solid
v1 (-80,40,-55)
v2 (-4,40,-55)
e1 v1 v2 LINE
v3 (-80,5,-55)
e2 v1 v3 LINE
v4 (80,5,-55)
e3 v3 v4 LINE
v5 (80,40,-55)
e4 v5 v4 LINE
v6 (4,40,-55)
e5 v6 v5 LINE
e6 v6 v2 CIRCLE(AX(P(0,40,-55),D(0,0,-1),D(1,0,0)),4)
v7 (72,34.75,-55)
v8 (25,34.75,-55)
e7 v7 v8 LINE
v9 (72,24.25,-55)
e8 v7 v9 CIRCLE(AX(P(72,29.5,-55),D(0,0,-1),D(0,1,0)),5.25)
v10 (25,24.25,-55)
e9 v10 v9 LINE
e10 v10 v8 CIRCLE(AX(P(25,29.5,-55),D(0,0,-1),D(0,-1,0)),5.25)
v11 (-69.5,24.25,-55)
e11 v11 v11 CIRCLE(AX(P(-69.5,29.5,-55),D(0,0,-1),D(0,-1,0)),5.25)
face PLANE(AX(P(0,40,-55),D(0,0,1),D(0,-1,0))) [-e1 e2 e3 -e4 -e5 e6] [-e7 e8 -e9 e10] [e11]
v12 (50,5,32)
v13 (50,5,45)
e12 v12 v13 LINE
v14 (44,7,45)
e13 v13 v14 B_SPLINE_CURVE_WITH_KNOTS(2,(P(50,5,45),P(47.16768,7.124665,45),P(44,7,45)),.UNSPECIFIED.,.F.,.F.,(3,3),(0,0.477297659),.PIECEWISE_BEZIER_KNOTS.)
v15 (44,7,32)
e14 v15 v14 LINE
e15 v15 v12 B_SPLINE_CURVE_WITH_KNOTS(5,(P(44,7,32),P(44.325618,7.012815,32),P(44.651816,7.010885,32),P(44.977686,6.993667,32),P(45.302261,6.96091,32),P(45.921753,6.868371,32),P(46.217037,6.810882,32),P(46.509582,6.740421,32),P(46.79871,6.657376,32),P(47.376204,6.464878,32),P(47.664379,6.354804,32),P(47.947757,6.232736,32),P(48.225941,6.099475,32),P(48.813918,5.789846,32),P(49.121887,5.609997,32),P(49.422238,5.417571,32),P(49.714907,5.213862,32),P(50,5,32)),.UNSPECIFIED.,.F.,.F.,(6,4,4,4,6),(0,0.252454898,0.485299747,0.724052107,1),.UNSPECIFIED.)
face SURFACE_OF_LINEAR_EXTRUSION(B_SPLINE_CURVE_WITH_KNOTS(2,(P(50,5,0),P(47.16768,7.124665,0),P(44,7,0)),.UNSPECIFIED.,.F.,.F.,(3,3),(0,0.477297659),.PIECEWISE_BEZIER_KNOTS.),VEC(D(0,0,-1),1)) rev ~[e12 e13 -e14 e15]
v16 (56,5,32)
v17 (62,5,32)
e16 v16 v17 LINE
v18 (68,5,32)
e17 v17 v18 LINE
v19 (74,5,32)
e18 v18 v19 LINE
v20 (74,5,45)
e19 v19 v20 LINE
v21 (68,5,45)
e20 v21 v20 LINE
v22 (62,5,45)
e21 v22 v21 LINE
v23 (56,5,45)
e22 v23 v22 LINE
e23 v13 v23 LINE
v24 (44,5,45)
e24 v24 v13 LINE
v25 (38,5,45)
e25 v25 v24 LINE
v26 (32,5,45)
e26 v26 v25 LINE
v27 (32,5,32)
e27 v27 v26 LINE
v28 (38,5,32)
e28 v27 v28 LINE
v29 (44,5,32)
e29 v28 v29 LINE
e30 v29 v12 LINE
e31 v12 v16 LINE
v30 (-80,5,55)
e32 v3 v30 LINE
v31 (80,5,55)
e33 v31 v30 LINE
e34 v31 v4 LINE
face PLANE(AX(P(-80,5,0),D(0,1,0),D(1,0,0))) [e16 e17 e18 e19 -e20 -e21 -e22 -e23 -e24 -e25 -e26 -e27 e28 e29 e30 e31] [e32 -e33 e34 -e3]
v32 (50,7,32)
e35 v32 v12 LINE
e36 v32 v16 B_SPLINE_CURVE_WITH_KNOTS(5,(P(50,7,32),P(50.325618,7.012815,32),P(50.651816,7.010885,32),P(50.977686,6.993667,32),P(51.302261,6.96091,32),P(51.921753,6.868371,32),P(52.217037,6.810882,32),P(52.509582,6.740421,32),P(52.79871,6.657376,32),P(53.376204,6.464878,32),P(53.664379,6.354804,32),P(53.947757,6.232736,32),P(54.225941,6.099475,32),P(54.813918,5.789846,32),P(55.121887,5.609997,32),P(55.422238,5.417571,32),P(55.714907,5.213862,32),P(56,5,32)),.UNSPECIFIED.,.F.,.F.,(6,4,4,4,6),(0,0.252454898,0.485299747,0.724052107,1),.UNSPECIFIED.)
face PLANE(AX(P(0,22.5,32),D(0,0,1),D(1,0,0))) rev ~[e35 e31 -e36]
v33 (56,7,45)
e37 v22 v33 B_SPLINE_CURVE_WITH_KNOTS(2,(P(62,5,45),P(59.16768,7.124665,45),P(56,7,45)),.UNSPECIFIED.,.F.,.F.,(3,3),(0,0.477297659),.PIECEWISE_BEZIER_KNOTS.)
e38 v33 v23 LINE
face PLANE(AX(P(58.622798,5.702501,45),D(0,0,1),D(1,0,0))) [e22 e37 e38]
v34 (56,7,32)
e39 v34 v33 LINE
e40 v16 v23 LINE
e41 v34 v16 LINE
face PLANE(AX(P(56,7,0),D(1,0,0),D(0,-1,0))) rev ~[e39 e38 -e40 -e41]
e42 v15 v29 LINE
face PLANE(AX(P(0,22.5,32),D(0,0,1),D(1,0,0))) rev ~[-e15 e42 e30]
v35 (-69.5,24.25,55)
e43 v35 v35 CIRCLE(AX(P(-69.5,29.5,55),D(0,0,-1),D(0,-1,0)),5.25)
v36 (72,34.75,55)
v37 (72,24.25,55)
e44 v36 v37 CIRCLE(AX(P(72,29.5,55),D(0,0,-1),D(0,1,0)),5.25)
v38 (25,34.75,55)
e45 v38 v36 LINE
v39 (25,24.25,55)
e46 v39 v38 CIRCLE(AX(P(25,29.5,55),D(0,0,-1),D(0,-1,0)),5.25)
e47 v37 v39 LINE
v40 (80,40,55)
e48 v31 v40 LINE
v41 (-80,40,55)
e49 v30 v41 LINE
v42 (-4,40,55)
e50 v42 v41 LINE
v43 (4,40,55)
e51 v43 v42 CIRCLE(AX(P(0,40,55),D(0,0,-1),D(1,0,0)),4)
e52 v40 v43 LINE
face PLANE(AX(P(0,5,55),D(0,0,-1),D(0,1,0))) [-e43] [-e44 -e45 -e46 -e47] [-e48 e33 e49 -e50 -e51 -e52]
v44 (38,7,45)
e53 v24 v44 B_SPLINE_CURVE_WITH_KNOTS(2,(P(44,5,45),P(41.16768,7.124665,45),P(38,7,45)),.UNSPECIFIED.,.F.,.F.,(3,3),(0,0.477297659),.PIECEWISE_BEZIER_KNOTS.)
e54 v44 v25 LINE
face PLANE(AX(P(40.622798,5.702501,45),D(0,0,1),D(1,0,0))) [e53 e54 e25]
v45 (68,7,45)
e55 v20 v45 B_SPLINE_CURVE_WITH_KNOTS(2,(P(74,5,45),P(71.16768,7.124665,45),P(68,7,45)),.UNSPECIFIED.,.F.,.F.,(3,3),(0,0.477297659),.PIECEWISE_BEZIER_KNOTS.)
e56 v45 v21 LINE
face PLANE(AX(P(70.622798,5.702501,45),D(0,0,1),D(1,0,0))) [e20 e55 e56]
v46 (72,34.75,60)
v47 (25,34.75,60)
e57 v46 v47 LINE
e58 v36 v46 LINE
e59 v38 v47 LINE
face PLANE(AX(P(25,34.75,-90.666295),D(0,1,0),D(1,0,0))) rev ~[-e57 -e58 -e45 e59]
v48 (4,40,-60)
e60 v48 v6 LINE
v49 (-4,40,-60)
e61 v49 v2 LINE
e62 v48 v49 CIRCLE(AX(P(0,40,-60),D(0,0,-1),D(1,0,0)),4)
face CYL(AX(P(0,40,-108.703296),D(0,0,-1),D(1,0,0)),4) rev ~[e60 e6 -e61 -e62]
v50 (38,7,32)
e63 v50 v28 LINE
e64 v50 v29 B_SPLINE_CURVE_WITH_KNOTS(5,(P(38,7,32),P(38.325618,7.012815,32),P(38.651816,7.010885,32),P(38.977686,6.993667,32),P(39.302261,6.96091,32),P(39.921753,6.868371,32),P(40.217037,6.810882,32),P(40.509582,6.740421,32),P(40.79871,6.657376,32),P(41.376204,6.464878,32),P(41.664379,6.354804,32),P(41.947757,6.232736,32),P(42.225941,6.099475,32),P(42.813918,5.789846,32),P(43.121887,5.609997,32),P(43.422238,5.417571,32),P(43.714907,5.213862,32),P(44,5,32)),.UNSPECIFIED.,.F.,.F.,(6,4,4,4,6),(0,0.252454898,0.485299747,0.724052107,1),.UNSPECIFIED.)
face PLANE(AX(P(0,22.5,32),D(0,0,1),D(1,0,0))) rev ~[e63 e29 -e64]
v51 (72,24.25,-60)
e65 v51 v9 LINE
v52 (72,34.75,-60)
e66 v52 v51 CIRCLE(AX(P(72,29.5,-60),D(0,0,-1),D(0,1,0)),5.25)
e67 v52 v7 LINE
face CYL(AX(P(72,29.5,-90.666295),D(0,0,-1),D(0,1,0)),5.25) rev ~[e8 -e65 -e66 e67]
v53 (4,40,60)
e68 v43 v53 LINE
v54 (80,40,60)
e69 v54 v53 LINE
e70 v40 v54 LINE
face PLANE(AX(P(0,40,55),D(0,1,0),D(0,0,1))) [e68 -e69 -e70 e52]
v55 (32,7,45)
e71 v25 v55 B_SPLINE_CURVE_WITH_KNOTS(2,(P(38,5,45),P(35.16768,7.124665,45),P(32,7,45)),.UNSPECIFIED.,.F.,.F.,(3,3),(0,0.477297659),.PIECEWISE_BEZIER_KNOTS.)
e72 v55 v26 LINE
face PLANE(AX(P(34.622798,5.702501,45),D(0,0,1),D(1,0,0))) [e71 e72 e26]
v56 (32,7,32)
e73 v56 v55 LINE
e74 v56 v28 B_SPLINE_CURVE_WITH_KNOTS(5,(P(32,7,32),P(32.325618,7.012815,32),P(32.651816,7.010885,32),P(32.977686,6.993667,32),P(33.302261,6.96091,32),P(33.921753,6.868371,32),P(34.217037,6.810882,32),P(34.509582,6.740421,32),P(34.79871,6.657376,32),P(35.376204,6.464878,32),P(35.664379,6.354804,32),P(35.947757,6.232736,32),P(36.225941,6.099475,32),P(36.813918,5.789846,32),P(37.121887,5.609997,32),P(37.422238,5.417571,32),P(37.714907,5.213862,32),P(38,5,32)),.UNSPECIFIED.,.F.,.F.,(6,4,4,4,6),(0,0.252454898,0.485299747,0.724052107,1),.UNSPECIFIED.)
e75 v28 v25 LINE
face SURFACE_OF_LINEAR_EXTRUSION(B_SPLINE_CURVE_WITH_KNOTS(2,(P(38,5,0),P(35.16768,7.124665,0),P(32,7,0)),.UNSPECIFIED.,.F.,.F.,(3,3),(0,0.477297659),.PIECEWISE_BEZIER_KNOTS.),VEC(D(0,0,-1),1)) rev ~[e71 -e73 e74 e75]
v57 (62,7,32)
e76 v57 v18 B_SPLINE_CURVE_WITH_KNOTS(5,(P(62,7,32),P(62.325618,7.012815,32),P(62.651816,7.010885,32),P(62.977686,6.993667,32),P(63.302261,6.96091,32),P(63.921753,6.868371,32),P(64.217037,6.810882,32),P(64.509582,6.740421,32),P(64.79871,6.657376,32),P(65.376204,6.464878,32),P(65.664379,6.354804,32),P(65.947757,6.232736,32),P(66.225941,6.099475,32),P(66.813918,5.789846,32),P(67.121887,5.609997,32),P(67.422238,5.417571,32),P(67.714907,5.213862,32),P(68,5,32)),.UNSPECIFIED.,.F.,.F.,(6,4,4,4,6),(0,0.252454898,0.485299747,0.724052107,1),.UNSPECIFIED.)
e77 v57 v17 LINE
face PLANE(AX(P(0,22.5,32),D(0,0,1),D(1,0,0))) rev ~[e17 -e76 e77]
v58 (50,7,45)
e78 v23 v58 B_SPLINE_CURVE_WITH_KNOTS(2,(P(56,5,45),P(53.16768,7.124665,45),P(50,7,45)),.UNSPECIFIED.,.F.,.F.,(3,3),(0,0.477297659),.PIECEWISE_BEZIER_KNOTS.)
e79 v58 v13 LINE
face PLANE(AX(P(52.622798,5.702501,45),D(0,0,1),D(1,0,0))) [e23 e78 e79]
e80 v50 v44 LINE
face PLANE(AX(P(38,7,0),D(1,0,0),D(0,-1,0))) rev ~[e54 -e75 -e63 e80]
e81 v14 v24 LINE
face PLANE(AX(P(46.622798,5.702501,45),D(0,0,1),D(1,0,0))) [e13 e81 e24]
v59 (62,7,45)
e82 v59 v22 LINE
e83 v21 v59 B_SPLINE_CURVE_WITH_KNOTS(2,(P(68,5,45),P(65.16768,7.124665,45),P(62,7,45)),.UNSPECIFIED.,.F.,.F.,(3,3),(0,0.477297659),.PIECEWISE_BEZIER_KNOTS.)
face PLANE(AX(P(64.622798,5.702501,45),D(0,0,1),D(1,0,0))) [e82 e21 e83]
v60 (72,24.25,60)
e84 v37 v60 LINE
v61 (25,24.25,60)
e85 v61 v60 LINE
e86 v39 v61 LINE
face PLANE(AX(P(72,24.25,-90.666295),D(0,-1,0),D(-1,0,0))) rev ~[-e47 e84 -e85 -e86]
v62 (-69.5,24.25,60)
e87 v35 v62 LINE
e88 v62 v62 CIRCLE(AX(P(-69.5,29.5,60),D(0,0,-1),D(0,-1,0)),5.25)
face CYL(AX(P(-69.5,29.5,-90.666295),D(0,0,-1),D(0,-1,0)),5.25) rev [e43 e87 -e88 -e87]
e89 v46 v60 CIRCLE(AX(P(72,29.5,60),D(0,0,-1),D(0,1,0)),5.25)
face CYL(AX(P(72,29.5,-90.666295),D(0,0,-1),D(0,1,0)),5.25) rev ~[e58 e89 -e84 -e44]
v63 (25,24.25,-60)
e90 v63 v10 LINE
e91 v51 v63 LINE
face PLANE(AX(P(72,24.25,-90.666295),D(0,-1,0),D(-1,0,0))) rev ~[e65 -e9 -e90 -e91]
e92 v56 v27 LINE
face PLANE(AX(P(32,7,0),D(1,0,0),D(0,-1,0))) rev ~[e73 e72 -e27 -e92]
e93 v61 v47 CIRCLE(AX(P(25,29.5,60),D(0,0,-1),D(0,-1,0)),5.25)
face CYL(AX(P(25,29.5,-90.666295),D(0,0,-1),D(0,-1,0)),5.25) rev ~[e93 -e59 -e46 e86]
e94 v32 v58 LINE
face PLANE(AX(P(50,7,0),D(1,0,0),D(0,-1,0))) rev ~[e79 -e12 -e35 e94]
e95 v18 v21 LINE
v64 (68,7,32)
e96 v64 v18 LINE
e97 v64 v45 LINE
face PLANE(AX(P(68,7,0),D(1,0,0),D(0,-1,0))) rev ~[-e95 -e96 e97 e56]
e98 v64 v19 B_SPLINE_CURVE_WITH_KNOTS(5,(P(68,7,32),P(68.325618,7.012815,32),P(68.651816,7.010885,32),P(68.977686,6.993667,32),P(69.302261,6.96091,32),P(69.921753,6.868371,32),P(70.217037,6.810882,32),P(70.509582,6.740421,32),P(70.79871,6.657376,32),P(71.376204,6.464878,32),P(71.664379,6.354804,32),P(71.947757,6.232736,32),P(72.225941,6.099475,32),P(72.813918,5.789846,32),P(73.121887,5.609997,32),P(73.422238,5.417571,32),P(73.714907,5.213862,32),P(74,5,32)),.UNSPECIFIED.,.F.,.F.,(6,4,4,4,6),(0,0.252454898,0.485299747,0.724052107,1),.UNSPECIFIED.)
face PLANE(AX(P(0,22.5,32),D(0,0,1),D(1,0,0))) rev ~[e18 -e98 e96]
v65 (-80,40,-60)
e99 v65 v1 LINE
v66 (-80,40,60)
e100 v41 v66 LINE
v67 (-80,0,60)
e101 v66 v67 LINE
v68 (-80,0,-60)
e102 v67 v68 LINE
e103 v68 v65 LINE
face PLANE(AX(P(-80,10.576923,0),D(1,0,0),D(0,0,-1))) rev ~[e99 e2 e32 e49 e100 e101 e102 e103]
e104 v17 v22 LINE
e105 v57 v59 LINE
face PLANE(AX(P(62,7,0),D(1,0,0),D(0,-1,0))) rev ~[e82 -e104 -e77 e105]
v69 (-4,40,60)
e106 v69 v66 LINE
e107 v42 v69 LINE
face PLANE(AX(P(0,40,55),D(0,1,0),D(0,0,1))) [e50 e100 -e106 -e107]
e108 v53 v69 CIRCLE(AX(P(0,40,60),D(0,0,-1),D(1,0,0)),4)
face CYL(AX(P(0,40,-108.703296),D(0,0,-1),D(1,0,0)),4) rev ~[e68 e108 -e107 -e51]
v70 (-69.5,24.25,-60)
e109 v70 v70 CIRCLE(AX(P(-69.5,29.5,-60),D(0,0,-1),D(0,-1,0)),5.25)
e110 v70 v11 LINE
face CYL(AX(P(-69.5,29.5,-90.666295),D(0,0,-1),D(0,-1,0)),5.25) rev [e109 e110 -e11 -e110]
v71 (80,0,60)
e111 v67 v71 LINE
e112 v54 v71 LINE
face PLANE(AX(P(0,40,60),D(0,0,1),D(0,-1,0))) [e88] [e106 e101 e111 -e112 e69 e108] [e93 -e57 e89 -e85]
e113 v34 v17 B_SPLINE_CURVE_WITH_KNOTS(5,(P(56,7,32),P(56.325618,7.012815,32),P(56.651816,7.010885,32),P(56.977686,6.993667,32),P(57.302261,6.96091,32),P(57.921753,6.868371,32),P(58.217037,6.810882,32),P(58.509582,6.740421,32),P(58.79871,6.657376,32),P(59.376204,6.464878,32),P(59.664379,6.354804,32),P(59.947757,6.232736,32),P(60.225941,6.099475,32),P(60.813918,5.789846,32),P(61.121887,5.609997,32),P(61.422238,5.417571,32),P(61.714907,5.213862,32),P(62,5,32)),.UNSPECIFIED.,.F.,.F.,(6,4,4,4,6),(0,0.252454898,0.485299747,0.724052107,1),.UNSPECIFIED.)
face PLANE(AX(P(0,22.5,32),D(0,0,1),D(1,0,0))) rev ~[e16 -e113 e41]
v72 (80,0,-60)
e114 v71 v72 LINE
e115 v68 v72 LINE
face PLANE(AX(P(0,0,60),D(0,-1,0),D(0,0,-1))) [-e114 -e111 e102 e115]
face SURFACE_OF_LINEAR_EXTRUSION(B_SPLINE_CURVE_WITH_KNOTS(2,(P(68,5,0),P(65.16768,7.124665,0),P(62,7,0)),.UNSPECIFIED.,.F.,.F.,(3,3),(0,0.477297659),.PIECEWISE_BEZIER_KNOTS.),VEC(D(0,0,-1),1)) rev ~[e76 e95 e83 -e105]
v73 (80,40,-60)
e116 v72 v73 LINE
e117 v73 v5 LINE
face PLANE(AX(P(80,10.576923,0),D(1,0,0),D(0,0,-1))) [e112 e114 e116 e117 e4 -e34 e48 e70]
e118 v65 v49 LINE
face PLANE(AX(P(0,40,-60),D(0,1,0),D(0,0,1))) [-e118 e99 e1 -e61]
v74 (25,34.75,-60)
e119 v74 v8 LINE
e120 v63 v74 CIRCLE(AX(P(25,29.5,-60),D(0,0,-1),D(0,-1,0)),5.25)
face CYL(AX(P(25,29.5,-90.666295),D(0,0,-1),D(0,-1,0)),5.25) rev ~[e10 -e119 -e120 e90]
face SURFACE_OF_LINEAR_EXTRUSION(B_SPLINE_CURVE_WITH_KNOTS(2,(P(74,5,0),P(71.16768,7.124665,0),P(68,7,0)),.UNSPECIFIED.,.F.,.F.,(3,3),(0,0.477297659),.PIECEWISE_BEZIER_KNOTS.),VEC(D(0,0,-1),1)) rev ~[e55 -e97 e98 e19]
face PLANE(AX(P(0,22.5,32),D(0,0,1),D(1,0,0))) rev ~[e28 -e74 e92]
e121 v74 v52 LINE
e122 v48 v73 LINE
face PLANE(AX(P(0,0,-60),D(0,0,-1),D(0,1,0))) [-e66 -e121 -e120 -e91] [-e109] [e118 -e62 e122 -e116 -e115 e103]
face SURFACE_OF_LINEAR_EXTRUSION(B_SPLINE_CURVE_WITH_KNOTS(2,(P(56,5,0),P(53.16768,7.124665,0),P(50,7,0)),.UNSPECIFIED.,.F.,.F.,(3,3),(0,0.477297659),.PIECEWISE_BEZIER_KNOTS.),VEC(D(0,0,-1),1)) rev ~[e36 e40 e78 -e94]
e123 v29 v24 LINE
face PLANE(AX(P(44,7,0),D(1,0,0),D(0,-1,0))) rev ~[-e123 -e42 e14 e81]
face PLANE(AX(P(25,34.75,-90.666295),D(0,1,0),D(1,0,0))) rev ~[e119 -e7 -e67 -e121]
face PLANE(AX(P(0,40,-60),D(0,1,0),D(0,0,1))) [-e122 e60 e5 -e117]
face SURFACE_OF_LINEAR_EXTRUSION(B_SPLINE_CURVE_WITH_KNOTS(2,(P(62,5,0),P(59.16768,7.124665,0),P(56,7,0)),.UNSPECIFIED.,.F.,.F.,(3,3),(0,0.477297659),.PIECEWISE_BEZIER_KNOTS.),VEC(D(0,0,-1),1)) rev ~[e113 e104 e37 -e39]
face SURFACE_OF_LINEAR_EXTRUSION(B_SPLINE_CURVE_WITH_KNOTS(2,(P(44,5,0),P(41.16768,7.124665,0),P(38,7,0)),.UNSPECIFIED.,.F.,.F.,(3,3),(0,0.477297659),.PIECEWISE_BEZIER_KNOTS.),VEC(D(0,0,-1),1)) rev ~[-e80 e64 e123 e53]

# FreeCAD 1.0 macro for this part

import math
import FreeCAD as App
import Part
import Sketcher


def add_polygon(sketch, points):
    """Adds a closed chain of lines whose ends are joined by coincident constraints."""
    first, n = sketch.GeometryCount, len(points)
    for a, b in zip(points, points[1:] + points[:1]):
        sketch.addGeometry(Part.LineSegment(App.Vector(*a, 0), App.Vector(*b, 0)), False)
    for i in range(n):
        sketch.addConstraint(Sketcher.Constraint("Coincident", first + i, 2, first + (i + 1) % n, 1))

doc = App.newDocument("Part")
body = doc.addObject("PartDesign::Body", "Body")

sketch1 = body.newObject("Sketcher::SketchObject", "Sketch")
sketch1.AttachmentSupport = (doc.getObject("YZ_Plane"), [""])
sketch1.MapMode = "FlatFace"
add_polygon(sketch1, [(40, 60), (0, 60), (0, -60), (40, -60), (40, -55), (5, -55), (5, 55), (40, 55)])
sketch1.addConstraint([
    Sketcher.Constraint("Horizontal", 0),
    Sketcher.Constraint("Vertical", 1),
    Sketcher.Constraint("Horizontal", 2),
    Sketcher.Constraint("Vertical", 3),
    Sketcher.Constraint("Horizontal", 4),
    Sketcher.Constraint("Vertical", 5),
    Sketcher.Constraint("Horizontal", 6),
    Sketcher.Constraint("Vertical", 7),
    Sketcher.Constraint("Symmetric", 0, 2, 1, 2, -1, 1),
    Sketcher.Constraint("Symmetric", 3, 2, 6, 2, -1),
    Sketcher.Constraint("DistanceX", 0, 2, 0, 1, 40.0),
    Sketcher.Constraint("DistanceX", 4, 2, 4, 1, 35.0),
    Sketcher.Constraint("DistanceY", 1, 2, 1, 1, 120.0),
    Sketcher.Constraint("DistanceY", 3, 1, 3, 2, 5.0),
])
pad1 = body.newObject("PartDesign::Pad", "Pad")
pad1.Profile = sketch1
pad1.Length = 160
pad1.Midplane = True

sketch2 = body.newObject("Sketcher::SketchObject", "Sketch001")
sketch2.AttachmentSupport = (doc.getObject("XY_Plane"), [""])
sketch2.MapMode = "FlatFace"
sketch2.AttachmentOffset = App.Placement(App.Vector(0, 0, 60), App.Rotation())
sketch2.addGeometry([
    Part.Circle(App.Vector(-69.5, 29.5, 0), App.Vector(0, 0, 1), 5.25),
    Part.LineSegment(App.Vector(72, 34.75, 0), App.Vector(25, 34.75, 0)),
    Part.ArcOfCircle(Part.Circle(App.Vector(25, 29.5, 0), App.Vector(0, 0, 1), 5.25), math.radians(90), math.radians(270)),
    Part.LineSegment(App.Vector(25, 24.25, 0), App.Vector(72, 24.25, 0)),
    Part.ArcOfCircle(Part.Circle(App.Vector(72, 29.5, 0), App.Vector(0, 0, 1), 5.25), math.radians(-90), math.radians(90)),
], False)
sketch2.addConstraint([
    Sketcher.Constraint("Tangent", 1, 2, 2, 1),
    Sketcher.Constraint("Tangent", 2, 2, 3, 1),
    Sketcher.Constraint("Tangent", 3, 2, 4, 1),
    Sketcher.Constraint("Tangent", 4, 2, 1, 1),
    Sketcher.Constraint("Horizontal", 1),
    Sketcher.Constraint("Horizontal", 3),
    Sketcher.Constraint("Equal", 0, 2),
    Sketcher.Constraint("Horizontal", 0, 3, 2, 3),
    Sketcher.Constraint("Diameter", 0, 10.5),
    Sketcher.Constraint("DistanceX", 1, 2, 1, 1, 47.0),
    Sketcher.Constraint("DistanceX", -1, 1, 2, 3, 25.0),
    Sketcher.Constraint("DistanceX", 0, 3, -1, 1, 69.5),
    Sketcher.Constraint("DistanceY", -1, 1, 0, 3, 29.5),
])
pocket1 = body.newObject("PartDesign::Pocket", "Pocket")
pocket1.Profile = sketch2
pocket1.Type = "ThroughAll"
pocket1.Midplane = True

sketch3 = body.newObject("Sketcher::SketchObject", "Sketch002")
sketch3.AttachmentSupport = (doc.getObject("XY_Plane"), [""])
sketch3.MapMode = "FlatFace"
sketch3.addGeometry([
    Part.LineSegment(App.Vector(4, 40, 0), App.Vector(-4, 40, 0)),
    Part.ArcOfCircle(Part.Circle(App.Vector(0, 40, 0), App.Vector(0, 0, 1), 4), math.radians(180), math.radians(360)),
], False)
sketch3.addConstraint([
    Sketcher.Constraint("Coincident", 0, 1, 1, 2),
    Sketcher.Constraint("Coincident", 1, 1, 0, 2),
    Sketcher.Constraint("Horizontal", 0),
    Sketcher.Constraint("PointOnObject", 1, 3, -2),
    Sketcher.Constraint("Horizontal", 1, 3, 0, 1),
    Sketcher.Constraint("Radius", 1, 4.0),
    Sketcher.Constraint("DistanceY", -1, 1, 1, 3, 40.0),
])
pocket2 = body.newObject("PartDesign::Pocket", "Pocket001")
pocket2.Profile = sketch3
pocket2.Type = "ThroughAll"
pocket2.Midplane = True

sketch4 = body.newObject("Sketcher::SketchObject", "Sketch003")
sketch4.AttachmentSupport = (doc.getObject("XY_Plane"), [""])
sketch4.MapMode = "FlatFace"
sketch4.addGeometry([
    Part.LineSegment(App.Vector(38, 5, 0), App.Vector(32, 5, 0)),
    Part.LineSegment(App.Vector(32, 5, 0), App.Vector(32, 7, 0)),
    Part.BSplineCurve([App.Vector(38, 5, 0), App.Vector(35.16768, 7.124665, 0), App.Vector(32, 7, 0)], [3, 3], [0, 0.477297659], False, 2, [1, 1, 1], False),
], False)
sketch4.addConstraint([
    Sketcher.Constraint("Block", 2),
    Sketcher.Constraint("Coincident", 0, 2, 1, 1),
    Sketcher.Constraint("Coincident", 1, 2, 2, 2),
    Sketcher.Constraint("Coincident", 2, 1, 0, 1),
    Sketcher.Constraint("Horizontal", 0),
    Sketcher.Constraint("Vertical", 1),
])
pad2 = body.newObject("PartDesign::Pad", "Pad001")
pad2.Profile = sketch4
pad2.Length = 45
doc.recompute()

linearpattern = body.newObject("PartDesign::LinearPattern", "LinearPattern")
linearpattern.Originals = [pad2]
linearpattern.Direction = (doc.getObject("X_Axis"), [""])
linearpattern.Mode = "offset"
linearpattern.Offset = 6
linearpattern.Occurrences = 7
body.Tip = linearpattern

sketch5 = body.newObject("Sketcher::SketchObject", "Sketch004")
sketch5.AttachmentSupport = (doc.getObject("XY_Plane"), [""])
sketch5.MapMode = "FlatFace"
add_polygon(sketch5, [(-80, 40), (-80, 5), (80, 5), (80, 40)])
sketch5.addConstraint([
    Sketcher.Constraint("Vertical", 0),
    Sketcher.Constraint("Horizontal", 1),
    Sketcher.Constraint("Vertical", 2),
    Sketcher.Constraint("Horizontal", 3),
    Sketcher.Constraint("DistanceX", 1, 1, 1, 2, 160.0),
    Sketcher.Constraint("DistanceY", 0, 2, 0, 1, 35.0),
    Sketcher.Constraint("DistanceX", 0, 2, -1, 1, 80.0),
    Sketcher.Constraint("DistanceY", -1, 1, 0, 2, 5.0),
])
pocket3 = body.newObject("PartDesign::Pocket", "Pocket002")
pocket3.Profile = sketch5
pocket3.Length = 32
pocket3.Reversed = True

doc.recompute()
